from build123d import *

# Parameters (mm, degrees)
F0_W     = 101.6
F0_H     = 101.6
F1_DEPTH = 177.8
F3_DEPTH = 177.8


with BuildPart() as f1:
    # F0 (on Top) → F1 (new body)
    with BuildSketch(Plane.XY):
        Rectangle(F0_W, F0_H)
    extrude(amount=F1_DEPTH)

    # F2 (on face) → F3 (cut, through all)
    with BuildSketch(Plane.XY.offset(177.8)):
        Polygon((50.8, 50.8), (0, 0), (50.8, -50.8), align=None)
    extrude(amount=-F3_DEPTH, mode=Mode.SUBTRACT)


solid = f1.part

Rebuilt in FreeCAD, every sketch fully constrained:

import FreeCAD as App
import Part
import Sketcher

V = App.Vector
Q = App.Units.Quantity


def add_polygon(sketch, points):
    """Adds a closed chain of lines whose ends are joined by coincident constraints."""
    first, n = sketch.GeometryCount, len(points)
    for a, b in zip(points, points[1:] + points[:1]):
        sketch.addGeometry(Part.LineSegment(App.Vector(*a, 0), App.Vector(*b, 0)), False)
    for i in range(n):
        sketch.addConstraint(Sketcher.Constraint("Coincident", first + i, 2, first + (i + 1) % n, 1))

doc = App.newDocument("Part")
body = doc.addObject("PartDesign::Body", "Body")

sketch1 = body.newObject("Sketcher::SketchObject", "Sketch")
sketch1.AttachmentSupport = (doc.getObject("XY_Plane"), [""])
sketch1.MapMode = "FlatFace"
add_polygon(sketch1, [(-51, 51), (-51, -51), (51, -51), (51, 51)])
sketch1.addConstraint(Sketcher.Constraint("Vertical", 0))
sketch1.addConstraint(Sketcher.Constraint("Horizontal", 1))
sketch1.addConstraint(Sketcher.Constraint("Vertical", 2))
sketch1.addConstraint(Sketcher.Constraint("Horizontal", 3))
sketch1.addConstraint(Sketcher.Constraint("Symmetric", 0, 2, 2, 2, -1, 1))
sketch1.addConstraint(Sketcher.Constraint("Equal", 3, 0))
sketch1.addConstraint(Sketcher.Constraint("DistanceX", 1, 1, 1, 2, Q("4 in")))
pad1 = body.newObject("PartDesign::Pad", "Pad")
pad1.Profile = sketch1
pad1.Length = Q("7 in")

sketch2 = body.newObject("Sketcher::SketchObject", "Sketch001")
sketch2.AttachmentSupport = (doc.getObject("XY_Plane"), [""])
sketch2.MapMode = "FlatFace"
sketch2.AttachmentOffset = App.Placement(V(0, 0, 7 * 25.4), App.Rotation())
add_polygon(sketch2, [(51, 51), (0, 0), (51, -51)])
sketch2.addConstraint(Sketcher.Constraint("Vertical", 2))
sketch2.addConstraint(Sketcher.Constraint("Coincident", 0, 2, -1, 1))
sketch2.addConstraint(Sketcher.Constraint("Perpendicular", 0, 1))
sketch2.addConstraint(Sketcher.Constraint("Equal", 0, 1))
sketch2.addConstraint(Sketcher.Constraint("DistanceY", 2, 1, 2, 2, Q("4 in")))
pocket1 = body.newObject("PartDesign::Pocket", "Pocket")
pocket1.Profile = sketch2
pocket1.Type = "ThroughAll"

doc.recompute()
